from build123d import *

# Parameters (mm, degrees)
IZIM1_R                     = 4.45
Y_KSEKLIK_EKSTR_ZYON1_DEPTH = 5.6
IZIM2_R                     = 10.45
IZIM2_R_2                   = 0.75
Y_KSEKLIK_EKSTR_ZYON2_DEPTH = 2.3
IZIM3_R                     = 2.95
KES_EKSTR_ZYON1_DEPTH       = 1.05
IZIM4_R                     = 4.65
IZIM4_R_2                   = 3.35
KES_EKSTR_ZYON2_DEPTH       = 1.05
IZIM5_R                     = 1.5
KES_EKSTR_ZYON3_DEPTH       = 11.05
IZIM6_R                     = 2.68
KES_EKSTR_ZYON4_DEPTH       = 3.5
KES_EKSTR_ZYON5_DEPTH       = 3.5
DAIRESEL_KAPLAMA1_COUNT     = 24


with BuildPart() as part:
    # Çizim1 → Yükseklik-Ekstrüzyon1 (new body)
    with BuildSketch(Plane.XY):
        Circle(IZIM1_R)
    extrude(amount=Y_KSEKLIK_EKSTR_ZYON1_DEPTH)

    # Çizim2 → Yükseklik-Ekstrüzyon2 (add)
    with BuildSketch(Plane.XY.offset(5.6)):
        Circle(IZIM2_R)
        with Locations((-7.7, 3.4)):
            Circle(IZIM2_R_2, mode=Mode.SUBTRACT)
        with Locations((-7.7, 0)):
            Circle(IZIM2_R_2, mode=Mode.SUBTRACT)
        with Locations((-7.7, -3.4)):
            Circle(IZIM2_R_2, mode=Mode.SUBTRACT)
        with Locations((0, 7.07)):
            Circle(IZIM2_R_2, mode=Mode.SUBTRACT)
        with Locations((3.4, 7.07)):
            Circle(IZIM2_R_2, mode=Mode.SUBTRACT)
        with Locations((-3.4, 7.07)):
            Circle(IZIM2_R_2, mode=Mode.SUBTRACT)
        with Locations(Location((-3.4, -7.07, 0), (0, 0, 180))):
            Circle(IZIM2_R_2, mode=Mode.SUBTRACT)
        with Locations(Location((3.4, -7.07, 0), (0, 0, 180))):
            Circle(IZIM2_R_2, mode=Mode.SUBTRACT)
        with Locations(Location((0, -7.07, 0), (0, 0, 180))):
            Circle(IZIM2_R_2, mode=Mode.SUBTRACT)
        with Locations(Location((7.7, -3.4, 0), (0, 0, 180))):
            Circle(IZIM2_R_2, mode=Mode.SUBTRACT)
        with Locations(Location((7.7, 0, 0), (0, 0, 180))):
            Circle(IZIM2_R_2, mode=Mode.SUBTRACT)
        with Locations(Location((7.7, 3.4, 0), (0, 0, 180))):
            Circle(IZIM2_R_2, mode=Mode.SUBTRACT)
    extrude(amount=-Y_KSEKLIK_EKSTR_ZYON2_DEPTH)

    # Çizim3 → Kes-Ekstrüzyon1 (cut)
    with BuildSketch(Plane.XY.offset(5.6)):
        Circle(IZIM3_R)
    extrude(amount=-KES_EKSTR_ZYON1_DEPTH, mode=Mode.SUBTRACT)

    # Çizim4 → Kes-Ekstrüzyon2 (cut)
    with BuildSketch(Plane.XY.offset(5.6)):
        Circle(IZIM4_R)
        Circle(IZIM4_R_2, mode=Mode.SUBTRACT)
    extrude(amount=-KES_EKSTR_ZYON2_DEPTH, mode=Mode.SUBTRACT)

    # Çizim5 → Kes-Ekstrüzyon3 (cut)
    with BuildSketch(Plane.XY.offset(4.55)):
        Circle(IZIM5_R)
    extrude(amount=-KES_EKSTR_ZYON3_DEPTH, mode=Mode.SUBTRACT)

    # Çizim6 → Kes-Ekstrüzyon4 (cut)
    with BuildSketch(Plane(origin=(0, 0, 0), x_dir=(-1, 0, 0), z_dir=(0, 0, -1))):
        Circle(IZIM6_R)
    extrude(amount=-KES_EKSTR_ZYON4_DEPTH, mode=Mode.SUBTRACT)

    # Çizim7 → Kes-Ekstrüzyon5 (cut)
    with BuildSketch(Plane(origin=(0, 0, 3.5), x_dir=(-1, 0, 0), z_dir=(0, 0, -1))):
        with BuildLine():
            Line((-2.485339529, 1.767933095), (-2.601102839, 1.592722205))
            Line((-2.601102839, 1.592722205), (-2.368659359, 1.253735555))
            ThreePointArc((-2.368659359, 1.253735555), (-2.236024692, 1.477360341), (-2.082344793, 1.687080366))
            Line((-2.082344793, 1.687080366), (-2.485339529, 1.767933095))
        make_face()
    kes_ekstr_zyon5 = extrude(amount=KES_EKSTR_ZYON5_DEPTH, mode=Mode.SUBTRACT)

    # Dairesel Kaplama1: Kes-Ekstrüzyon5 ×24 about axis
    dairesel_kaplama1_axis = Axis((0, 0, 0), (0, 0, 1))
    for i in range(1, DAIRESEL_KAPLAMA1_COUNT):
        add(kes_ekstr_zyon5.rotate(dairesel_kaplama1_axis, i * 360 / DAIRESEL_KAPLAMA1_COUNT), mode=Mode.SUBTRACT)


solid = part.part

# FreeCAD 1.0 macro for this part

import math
import FreeCAD as App
import Part
import Sketcher

doc = App.newDocument("Part")
params = doc.addObject("Spreadsheet::Sheet", "Params")
for row, (alias, value) in enumerate([
    ("sketch1_diameter", "8.9 mm"),
    ("pad1_length", "5.6 mm"),
    ("sketch2_diameter", "20.9 mm"),
    ("sketch2_diameter2", "1.5 mm"),
    ("pad2_length", "2.3 mm"),
    ("sketch3_diameter", "5.9 mm"),
    ("pocket1_length", "1.05 mm"),
    ("sketch4_diameter", "9.3 mm"),
    ("sketch4_diameter2", "6.7 mm"),
    ("pocket2_length", "1.05 mm"),
    ("sketch5_diameter", "3 mm"),
    ("pocket3_length", "11.05 mm"),
    ("sketch6_diameter", "5.36 mm"),
    ("pocket4_length", "3.5 mm"),
    ("sketch7_radius", "2.68 mm"),
    ("sketch7_length", "0.21 mm"),
    ("pocket5_length", "3.5 mm"),
], start=1):
    params.set(f"A{row}", alias)
    params.set(f"B{row}", "=" + value)
    params.setAlias(f"B{row}", alias)

body = doc.addObject("PartDesign::Body", "Body")

# Sketch on XY plane
sketch1 = doc.addObject("Sketcher::SketchObject", "Sketch")
body.addObject(sketch1)
sketch1.AttachmentSupport = (doc.XY_Plane, [""])
sketch1.MapMode = "FlatFace"
sketch1.addGeometry(Part.Circle(App.Vector(0, 0, 0), App.Vector(0, 0, 1), 4.45), False)
sketch1.addConstraint([
    Sketcher.Constraint("Coincident", 0, 3, -1, 1),
    Sketcher.Constraint("Diameter", 0, 8.9),
])
sketch1.setExpression("Constraints[1]", "Params.sketch1_diameter")
pad1 = doc.addObject("PartDesign::Pad", "Pad")
body.addObject(pad1)
pad1.Profile = sketch1
pad1.setExpression("Length", "Params.pad1_length")

# Sketch on XY plane
sketch2 = doc.addObject("Sketcher::SketchObject", "Sketch001")
body.addObject(sketch2)
sketch2.AttachmentSupport = (doc.XY_Plane, [""])
sketch2.MapMode = "FlatFace"
sketch2.AttachmentOffset = App.Placement(App.Vector(0, 0, 5.6), App.Rotation())
sketch2.addGeometry([
    Part.Circle(App.Vector(0, 0, 0), App.Vector(0, 0, 1), 10.45),  # 0
    Part.Circle(App.Vector(-3.4, -7.07, 0), App.Vector(0, 0, 1), 0.75),  # 1
    Part.Circle(App.Vector(-7.7, -3.4, 0), App.Vector(0, 0, 1), 0.75),  # 2
    Part.Circle(App.Vector(0, -7.07, 0), App.Vector(0, 0, 1), 0.75),  # 3
    Part.Circle(App.Vector(3.4, -7.07, 0), App.Vector(0, 0, 1), 0.75),  # 4
    Part.Circle(App.Vector(7.7, -3.4, 0), App.Vector(0, 0, 1), 0.75),  # 5
    Part.Circle(App.Vector(-7.7, 0, 0), App.Vector(0, 0, 1), 0.75),  # 6
    Part.Circle(App.Vector(-7.7, 3.4, 0), App.Vector(0, 0, 1), 0.75),  # 7
    Part.Circle(App.Vector(-3.4, 7.07, 0), App.Vector(0, 0, 1), 0.75),  # 8
    Part.Circle(App.Vector(7.7, 0, 0), App.Vector(0, 0, 1), 0.75),  # 9
    Part.Circle(App.Vector(7.7, 3.4, 0), App.Vector(0, 0, 1), 0.75),  # 10
    Part.Circle(App.Vector(0, 7.07, 0), App.Vector(0, 0, 1), 0.75),  # 11
    Part.Circle(App.Vector(3.4, 7.07, 0), App.Vector(0, 0, 1), 0.75),  # 12
], False)
sketch2.addConstraint([
    Sketcher.Constraint("Coincident", 0, 3, -1, 1),
    Sketcher.Constraint("Equal", 1, 2),
    Sketcher.Constraint("Equal", 2, 3),
    Sketcher.Constraint("Equal", 3, 4),
    Sketcher.Constraint("Equal", 4, 5),
    Sketcher.Constraint("Equal", 5, 6),
    Sketcher.Constraint("Equal", 6, 7),
    Sketcher.Constraint("Equal", 7, 8),
    Sketcher.Constraint("Equal", 8, 9),
    Sketcher.Constraint("Equal", 9, 10),
    Sketcher.Constraint("Equal", 10, 11),
    Sketcher.Constraint("Equal", 11, 12),
    Sketcher.Constraint("Symmetric", 5, 3, 7, 3, -1, 1),
    Sketcher.Constraint("Symmetric", 4, 3, 8, 3, -1, 1),
    Sketcher.Constraint("Symmetric", 6, 3, 9, 3, -1, 1),
    Sketcher.Constraint("Symmetric", 2, 3, 10, 3, -1, 1),
    Sketcher.Constraint("Symmetric", 3, 3, 11, 3, -1, 1),
    Sketcher.Constraint("Symmetric", 1, 3, 12, 3, -1, 1),
    Sketcher.Constraint("Symmetric", 1, 3, 4, 3, -2),
    Sketcher.Constraint("Symmetric", 2, 3, 5, 3, -2),
    Sketcher.Constraint("PointOnObject", 3, 3, -2),
    Sketcher.Constraint("PointOnObject", 6, 3, -1),
    Sketcher.Constraint("Horizontal", 1, 3, 3, 3),
    Sketcher.Constraint("Vertical", 2, 3, 6, 3),
    Sketcher.Constraint("Diameter", 0, 20.9),
    Sketcher.Constraint("Diameter", 1, 1.5),
    Sketcher.Constraint("DistanceX", 1, 3, -1, 1, 3.4),
    Sketcher.Constraint("DistanceX", 2, 3, -1, 1, 7.7),
    Sketcher.Constraint("DistanceY", 2, 3, -1, 1, 3.4),
    Sketcher.Constraint("DistanceY", 1, 3, -1, 1, 7.07),
])
sketch2.setExpression("Constraints[24]", "Params.sketch2_diameter")
sketch2.setExpression("Constraints[25]", "Params.sketch2_diameter2")
pad2 = doc.addObject("PartDesign::Pad", "Pad001")
body.addObject(pad2)
pad2.Profile = sketch2
pad2.setExpression("Length", "Params.pad2_length")
pad2.Reversed = True

# Sketch on XY plane
sketch3 = doc.addObject("Sketcher::SketchObject", "Sketch002")
body.addObject(sketch3)
sketch3.AttachmentSupport = (doc.XY_Plane, [""])
sketch3.MapMode = "FlatFace"
sketch3.AttachmentOffset = App.Placement(App.Vector(0, 0, 5.6), App.Rotation())
sketch3.addGeometry(Part.Circle(App.Vector(0, 0, 0), App.Vector(0, 0, 1), 2.95), False)
sketch3.addConstraint([
    Sketcher.Constraint("Coincident", 0, 3, -1, 1),
    Sketcher.Constraint("Diameter", 0, 5.9),
])
sketch3.setExpression("Constraints[1]", "Params.sketch3_diameter")
pocket1 = doc.addObject("PartDesign::Pocket", "Pocket")
body.addObject(pocket1)
pocket1.Profile = sketch3
pocket1.setExpression("Length", "Params.pocket1_length")

# Sketch on XY plane
sketch4 = doc.addObject("Sketcher::SketchObject", "Sketch003")
body.addObject(sketch4)
sketch4.AttachmentSupport = (doc.XY_Plane, [""])
sketch4.MapMode = "FlatFace"
sketch4.AttachmentOffset = App.Placement(App.Vector(0, 0, 5.6), App.Rotation())
sketch4.addGeometry([
    Part.Circle(App.Vector(0, 0, 0), App.Vector(0, 0, 1), 4.65),
    Part.Circle(App.Vector(0, 0, 0), App.Vector(0, 0, 1), 3.35),
], False)
sketch4.addConstraint([
    Sketcher.Constraint("Coincident", 0, 3, -1, 1),
    Sketcher.Constraint("Coincident", 1, 3, -1, 1),
    Sketcher.Constraint("Diameter", 0, 9.3),
    Sketcher.Constraint("Diameter", 1, 6.7),
])
sketch4.setExpression("Constraints[2]", "Params.sketch4_diameter")
sketch4.setExpression("Constraints[3]", "Params.sketch4_diameter2")
pocket2 = doc.addObject("PartDesign::Pocket", "Pocket001")
body.addObject(pocket2)
pocket2.Profile = sketch4
pocket2.setExpression("Length", "Params.pocket2_length")

# Sketch on XY plane
sketch5 = doc.addObject("Sketcher::SketchObject", "Sketch004")
body.addObject(sketch5)
sketch5.AttachmentSupport = (doc.XY_Plane, [""])
sketch5.MapMode = "FlatFace"
sketch5.AttachmentOffset = App.Placement(App.Vector(0, 0, 4.55), App.Rotation())
sketch5.addGeometry(Part.Circle(App.Vector(0, 0, 0), App.Vector(0, 0, 1), 1.5), False)
sketch5.addConstraint([
    Sketcher.Constraint("Coincident", 0, 3, -1, 1),
    Sketcher.Constraint("Diameter", 0, 3.0),
])
sketch5.setExpression("Constraints[1]", "Params.sketch5_diameter")
pocket3 = doc.addObject("PartDesign::Pocket", "Pocket002")
body.addObject(pocket3)
pocket3.Profile = sketch5
pocket3.setExpression("Length", "Params.pocket3_length")

# Sketch on XY plane
sketch6 = doc.addObject("Sketcher::SketchObject", "Sketch005")
body.addObject(sketch6)
sketch6.AttachmentSupport = (doc.XY_Plane, [""])
sketch6.MapMode = "FlatFace"
sketch6.addGeometry(Part.Circle(App.Vector(0, 0, 0), App.Vector(0, 0, 1), 2.68), False)
sketch6.addConstraint([
    Sketcher.Constraint("Coincident", 0, 3, -1, 1),
    Sketcher.Constraint("Diameter", 0, 5.36),
])
sketch6.setExpression("Constraints[1]", "Params.sketch6_diameter")
pocket4 = doc.addObject("PartDesign::Pocket", "Pocket003")
body.addObject(pocket4)
pocket4.Profile = sketch6
pocket4.setExpression("Length", "Params.pocket4_length")
pocket4.Reversed = True

# Sketch on XY plane
sketch7 = doc.addObject("Sketcher::SketchObject", "Sketch006")
body.addObject(sketch7)
sketch7.AttachmentSupport = (doc.XY_Plane, [""])
sketch7.MapMode = "FlatFace"
sketch7.AttachmentOffset = App.Placement(App.Vector(0, 0, 3.5), App.Rotation())
sketch7.addGeometry([
    Part.LineSegment(App.Vector(2.48534, 1.767933, 0), App.Vector(2.601103, 1.592722, 0)),
    Part.LineSegment(App.Vector(2.601103, 1.592722, 0), App.Vector(2.368659, 1.253736, 0)),
    Part.ArcOfCircle(Part.Circle(App.Vector(0, 0, 0), App.Vector(0, 0, 1), 2.68), math.radians(27.892348), math.radians(39.013804)),
    Part.LineSegment(App.Vector(2.082345, 1.68708, 0), App.Vector(2.48534, 1.767933, 0)),
], False)
sketch7.addConstraint([
    Sketcher.Constraint("Coincident", 0, 2, 1, 1),
    Sketcher.Constraint("Coincident", 1, 2, 2, 1),
    Sketcher.Constraint("Coincident", 2, 2, 3, 1),
    Sketcher.Constraint("Coincident", 3, 2, 0, 1),
    Sketcher.Constraint("Coincident", 2, 3, -1, 1),
    Sketcher.Constraint("Equal", 1, 3),
    Sketcher.Constraint("Radius", 2, 2.68),
    Sketcher.Constraint("Distance", 0, 0.21),
    Sketcher.Constraint("DistanceX", -1, 1, 1, 2, 2.368659),
    Sketcher.Constraint("DistanceY", -1, 1, 2, 2, 1.68708),
    Sketcher.Constraint("DistanceX", -1, 1, 3, 2, 2.48534),
    Sketcher.Constraint("DistanceX", 2, 2, 0, 2, 0.518758),
])
sketch7.setExpression("Constraints[6]", "Params.sketch7_radius")
sketch7.setExpression("Constraints[7]", "Params.sketch7_length")
pocket5 = doc.addObject("PartDesign::Pocket", "Pocket004")
body.addObject(pocket5)
pocket5.Profile = sketch7
pocket5.setExpression("Length", "Params.pocket5_length")
doc.recompute()

polarpattern = doc.addObject("PartDesign::PolarPattern", "PolarPattern")
body.addObject(polarpattern)
polarpattern.Originals = [pocket5]
polarpattern.Axis = (doc.Z_Axis, [""])
polarpattern.Angle = 360
polarpattern.Occurrences = 24
body.Tip = polarpattern

doc.recompute()
